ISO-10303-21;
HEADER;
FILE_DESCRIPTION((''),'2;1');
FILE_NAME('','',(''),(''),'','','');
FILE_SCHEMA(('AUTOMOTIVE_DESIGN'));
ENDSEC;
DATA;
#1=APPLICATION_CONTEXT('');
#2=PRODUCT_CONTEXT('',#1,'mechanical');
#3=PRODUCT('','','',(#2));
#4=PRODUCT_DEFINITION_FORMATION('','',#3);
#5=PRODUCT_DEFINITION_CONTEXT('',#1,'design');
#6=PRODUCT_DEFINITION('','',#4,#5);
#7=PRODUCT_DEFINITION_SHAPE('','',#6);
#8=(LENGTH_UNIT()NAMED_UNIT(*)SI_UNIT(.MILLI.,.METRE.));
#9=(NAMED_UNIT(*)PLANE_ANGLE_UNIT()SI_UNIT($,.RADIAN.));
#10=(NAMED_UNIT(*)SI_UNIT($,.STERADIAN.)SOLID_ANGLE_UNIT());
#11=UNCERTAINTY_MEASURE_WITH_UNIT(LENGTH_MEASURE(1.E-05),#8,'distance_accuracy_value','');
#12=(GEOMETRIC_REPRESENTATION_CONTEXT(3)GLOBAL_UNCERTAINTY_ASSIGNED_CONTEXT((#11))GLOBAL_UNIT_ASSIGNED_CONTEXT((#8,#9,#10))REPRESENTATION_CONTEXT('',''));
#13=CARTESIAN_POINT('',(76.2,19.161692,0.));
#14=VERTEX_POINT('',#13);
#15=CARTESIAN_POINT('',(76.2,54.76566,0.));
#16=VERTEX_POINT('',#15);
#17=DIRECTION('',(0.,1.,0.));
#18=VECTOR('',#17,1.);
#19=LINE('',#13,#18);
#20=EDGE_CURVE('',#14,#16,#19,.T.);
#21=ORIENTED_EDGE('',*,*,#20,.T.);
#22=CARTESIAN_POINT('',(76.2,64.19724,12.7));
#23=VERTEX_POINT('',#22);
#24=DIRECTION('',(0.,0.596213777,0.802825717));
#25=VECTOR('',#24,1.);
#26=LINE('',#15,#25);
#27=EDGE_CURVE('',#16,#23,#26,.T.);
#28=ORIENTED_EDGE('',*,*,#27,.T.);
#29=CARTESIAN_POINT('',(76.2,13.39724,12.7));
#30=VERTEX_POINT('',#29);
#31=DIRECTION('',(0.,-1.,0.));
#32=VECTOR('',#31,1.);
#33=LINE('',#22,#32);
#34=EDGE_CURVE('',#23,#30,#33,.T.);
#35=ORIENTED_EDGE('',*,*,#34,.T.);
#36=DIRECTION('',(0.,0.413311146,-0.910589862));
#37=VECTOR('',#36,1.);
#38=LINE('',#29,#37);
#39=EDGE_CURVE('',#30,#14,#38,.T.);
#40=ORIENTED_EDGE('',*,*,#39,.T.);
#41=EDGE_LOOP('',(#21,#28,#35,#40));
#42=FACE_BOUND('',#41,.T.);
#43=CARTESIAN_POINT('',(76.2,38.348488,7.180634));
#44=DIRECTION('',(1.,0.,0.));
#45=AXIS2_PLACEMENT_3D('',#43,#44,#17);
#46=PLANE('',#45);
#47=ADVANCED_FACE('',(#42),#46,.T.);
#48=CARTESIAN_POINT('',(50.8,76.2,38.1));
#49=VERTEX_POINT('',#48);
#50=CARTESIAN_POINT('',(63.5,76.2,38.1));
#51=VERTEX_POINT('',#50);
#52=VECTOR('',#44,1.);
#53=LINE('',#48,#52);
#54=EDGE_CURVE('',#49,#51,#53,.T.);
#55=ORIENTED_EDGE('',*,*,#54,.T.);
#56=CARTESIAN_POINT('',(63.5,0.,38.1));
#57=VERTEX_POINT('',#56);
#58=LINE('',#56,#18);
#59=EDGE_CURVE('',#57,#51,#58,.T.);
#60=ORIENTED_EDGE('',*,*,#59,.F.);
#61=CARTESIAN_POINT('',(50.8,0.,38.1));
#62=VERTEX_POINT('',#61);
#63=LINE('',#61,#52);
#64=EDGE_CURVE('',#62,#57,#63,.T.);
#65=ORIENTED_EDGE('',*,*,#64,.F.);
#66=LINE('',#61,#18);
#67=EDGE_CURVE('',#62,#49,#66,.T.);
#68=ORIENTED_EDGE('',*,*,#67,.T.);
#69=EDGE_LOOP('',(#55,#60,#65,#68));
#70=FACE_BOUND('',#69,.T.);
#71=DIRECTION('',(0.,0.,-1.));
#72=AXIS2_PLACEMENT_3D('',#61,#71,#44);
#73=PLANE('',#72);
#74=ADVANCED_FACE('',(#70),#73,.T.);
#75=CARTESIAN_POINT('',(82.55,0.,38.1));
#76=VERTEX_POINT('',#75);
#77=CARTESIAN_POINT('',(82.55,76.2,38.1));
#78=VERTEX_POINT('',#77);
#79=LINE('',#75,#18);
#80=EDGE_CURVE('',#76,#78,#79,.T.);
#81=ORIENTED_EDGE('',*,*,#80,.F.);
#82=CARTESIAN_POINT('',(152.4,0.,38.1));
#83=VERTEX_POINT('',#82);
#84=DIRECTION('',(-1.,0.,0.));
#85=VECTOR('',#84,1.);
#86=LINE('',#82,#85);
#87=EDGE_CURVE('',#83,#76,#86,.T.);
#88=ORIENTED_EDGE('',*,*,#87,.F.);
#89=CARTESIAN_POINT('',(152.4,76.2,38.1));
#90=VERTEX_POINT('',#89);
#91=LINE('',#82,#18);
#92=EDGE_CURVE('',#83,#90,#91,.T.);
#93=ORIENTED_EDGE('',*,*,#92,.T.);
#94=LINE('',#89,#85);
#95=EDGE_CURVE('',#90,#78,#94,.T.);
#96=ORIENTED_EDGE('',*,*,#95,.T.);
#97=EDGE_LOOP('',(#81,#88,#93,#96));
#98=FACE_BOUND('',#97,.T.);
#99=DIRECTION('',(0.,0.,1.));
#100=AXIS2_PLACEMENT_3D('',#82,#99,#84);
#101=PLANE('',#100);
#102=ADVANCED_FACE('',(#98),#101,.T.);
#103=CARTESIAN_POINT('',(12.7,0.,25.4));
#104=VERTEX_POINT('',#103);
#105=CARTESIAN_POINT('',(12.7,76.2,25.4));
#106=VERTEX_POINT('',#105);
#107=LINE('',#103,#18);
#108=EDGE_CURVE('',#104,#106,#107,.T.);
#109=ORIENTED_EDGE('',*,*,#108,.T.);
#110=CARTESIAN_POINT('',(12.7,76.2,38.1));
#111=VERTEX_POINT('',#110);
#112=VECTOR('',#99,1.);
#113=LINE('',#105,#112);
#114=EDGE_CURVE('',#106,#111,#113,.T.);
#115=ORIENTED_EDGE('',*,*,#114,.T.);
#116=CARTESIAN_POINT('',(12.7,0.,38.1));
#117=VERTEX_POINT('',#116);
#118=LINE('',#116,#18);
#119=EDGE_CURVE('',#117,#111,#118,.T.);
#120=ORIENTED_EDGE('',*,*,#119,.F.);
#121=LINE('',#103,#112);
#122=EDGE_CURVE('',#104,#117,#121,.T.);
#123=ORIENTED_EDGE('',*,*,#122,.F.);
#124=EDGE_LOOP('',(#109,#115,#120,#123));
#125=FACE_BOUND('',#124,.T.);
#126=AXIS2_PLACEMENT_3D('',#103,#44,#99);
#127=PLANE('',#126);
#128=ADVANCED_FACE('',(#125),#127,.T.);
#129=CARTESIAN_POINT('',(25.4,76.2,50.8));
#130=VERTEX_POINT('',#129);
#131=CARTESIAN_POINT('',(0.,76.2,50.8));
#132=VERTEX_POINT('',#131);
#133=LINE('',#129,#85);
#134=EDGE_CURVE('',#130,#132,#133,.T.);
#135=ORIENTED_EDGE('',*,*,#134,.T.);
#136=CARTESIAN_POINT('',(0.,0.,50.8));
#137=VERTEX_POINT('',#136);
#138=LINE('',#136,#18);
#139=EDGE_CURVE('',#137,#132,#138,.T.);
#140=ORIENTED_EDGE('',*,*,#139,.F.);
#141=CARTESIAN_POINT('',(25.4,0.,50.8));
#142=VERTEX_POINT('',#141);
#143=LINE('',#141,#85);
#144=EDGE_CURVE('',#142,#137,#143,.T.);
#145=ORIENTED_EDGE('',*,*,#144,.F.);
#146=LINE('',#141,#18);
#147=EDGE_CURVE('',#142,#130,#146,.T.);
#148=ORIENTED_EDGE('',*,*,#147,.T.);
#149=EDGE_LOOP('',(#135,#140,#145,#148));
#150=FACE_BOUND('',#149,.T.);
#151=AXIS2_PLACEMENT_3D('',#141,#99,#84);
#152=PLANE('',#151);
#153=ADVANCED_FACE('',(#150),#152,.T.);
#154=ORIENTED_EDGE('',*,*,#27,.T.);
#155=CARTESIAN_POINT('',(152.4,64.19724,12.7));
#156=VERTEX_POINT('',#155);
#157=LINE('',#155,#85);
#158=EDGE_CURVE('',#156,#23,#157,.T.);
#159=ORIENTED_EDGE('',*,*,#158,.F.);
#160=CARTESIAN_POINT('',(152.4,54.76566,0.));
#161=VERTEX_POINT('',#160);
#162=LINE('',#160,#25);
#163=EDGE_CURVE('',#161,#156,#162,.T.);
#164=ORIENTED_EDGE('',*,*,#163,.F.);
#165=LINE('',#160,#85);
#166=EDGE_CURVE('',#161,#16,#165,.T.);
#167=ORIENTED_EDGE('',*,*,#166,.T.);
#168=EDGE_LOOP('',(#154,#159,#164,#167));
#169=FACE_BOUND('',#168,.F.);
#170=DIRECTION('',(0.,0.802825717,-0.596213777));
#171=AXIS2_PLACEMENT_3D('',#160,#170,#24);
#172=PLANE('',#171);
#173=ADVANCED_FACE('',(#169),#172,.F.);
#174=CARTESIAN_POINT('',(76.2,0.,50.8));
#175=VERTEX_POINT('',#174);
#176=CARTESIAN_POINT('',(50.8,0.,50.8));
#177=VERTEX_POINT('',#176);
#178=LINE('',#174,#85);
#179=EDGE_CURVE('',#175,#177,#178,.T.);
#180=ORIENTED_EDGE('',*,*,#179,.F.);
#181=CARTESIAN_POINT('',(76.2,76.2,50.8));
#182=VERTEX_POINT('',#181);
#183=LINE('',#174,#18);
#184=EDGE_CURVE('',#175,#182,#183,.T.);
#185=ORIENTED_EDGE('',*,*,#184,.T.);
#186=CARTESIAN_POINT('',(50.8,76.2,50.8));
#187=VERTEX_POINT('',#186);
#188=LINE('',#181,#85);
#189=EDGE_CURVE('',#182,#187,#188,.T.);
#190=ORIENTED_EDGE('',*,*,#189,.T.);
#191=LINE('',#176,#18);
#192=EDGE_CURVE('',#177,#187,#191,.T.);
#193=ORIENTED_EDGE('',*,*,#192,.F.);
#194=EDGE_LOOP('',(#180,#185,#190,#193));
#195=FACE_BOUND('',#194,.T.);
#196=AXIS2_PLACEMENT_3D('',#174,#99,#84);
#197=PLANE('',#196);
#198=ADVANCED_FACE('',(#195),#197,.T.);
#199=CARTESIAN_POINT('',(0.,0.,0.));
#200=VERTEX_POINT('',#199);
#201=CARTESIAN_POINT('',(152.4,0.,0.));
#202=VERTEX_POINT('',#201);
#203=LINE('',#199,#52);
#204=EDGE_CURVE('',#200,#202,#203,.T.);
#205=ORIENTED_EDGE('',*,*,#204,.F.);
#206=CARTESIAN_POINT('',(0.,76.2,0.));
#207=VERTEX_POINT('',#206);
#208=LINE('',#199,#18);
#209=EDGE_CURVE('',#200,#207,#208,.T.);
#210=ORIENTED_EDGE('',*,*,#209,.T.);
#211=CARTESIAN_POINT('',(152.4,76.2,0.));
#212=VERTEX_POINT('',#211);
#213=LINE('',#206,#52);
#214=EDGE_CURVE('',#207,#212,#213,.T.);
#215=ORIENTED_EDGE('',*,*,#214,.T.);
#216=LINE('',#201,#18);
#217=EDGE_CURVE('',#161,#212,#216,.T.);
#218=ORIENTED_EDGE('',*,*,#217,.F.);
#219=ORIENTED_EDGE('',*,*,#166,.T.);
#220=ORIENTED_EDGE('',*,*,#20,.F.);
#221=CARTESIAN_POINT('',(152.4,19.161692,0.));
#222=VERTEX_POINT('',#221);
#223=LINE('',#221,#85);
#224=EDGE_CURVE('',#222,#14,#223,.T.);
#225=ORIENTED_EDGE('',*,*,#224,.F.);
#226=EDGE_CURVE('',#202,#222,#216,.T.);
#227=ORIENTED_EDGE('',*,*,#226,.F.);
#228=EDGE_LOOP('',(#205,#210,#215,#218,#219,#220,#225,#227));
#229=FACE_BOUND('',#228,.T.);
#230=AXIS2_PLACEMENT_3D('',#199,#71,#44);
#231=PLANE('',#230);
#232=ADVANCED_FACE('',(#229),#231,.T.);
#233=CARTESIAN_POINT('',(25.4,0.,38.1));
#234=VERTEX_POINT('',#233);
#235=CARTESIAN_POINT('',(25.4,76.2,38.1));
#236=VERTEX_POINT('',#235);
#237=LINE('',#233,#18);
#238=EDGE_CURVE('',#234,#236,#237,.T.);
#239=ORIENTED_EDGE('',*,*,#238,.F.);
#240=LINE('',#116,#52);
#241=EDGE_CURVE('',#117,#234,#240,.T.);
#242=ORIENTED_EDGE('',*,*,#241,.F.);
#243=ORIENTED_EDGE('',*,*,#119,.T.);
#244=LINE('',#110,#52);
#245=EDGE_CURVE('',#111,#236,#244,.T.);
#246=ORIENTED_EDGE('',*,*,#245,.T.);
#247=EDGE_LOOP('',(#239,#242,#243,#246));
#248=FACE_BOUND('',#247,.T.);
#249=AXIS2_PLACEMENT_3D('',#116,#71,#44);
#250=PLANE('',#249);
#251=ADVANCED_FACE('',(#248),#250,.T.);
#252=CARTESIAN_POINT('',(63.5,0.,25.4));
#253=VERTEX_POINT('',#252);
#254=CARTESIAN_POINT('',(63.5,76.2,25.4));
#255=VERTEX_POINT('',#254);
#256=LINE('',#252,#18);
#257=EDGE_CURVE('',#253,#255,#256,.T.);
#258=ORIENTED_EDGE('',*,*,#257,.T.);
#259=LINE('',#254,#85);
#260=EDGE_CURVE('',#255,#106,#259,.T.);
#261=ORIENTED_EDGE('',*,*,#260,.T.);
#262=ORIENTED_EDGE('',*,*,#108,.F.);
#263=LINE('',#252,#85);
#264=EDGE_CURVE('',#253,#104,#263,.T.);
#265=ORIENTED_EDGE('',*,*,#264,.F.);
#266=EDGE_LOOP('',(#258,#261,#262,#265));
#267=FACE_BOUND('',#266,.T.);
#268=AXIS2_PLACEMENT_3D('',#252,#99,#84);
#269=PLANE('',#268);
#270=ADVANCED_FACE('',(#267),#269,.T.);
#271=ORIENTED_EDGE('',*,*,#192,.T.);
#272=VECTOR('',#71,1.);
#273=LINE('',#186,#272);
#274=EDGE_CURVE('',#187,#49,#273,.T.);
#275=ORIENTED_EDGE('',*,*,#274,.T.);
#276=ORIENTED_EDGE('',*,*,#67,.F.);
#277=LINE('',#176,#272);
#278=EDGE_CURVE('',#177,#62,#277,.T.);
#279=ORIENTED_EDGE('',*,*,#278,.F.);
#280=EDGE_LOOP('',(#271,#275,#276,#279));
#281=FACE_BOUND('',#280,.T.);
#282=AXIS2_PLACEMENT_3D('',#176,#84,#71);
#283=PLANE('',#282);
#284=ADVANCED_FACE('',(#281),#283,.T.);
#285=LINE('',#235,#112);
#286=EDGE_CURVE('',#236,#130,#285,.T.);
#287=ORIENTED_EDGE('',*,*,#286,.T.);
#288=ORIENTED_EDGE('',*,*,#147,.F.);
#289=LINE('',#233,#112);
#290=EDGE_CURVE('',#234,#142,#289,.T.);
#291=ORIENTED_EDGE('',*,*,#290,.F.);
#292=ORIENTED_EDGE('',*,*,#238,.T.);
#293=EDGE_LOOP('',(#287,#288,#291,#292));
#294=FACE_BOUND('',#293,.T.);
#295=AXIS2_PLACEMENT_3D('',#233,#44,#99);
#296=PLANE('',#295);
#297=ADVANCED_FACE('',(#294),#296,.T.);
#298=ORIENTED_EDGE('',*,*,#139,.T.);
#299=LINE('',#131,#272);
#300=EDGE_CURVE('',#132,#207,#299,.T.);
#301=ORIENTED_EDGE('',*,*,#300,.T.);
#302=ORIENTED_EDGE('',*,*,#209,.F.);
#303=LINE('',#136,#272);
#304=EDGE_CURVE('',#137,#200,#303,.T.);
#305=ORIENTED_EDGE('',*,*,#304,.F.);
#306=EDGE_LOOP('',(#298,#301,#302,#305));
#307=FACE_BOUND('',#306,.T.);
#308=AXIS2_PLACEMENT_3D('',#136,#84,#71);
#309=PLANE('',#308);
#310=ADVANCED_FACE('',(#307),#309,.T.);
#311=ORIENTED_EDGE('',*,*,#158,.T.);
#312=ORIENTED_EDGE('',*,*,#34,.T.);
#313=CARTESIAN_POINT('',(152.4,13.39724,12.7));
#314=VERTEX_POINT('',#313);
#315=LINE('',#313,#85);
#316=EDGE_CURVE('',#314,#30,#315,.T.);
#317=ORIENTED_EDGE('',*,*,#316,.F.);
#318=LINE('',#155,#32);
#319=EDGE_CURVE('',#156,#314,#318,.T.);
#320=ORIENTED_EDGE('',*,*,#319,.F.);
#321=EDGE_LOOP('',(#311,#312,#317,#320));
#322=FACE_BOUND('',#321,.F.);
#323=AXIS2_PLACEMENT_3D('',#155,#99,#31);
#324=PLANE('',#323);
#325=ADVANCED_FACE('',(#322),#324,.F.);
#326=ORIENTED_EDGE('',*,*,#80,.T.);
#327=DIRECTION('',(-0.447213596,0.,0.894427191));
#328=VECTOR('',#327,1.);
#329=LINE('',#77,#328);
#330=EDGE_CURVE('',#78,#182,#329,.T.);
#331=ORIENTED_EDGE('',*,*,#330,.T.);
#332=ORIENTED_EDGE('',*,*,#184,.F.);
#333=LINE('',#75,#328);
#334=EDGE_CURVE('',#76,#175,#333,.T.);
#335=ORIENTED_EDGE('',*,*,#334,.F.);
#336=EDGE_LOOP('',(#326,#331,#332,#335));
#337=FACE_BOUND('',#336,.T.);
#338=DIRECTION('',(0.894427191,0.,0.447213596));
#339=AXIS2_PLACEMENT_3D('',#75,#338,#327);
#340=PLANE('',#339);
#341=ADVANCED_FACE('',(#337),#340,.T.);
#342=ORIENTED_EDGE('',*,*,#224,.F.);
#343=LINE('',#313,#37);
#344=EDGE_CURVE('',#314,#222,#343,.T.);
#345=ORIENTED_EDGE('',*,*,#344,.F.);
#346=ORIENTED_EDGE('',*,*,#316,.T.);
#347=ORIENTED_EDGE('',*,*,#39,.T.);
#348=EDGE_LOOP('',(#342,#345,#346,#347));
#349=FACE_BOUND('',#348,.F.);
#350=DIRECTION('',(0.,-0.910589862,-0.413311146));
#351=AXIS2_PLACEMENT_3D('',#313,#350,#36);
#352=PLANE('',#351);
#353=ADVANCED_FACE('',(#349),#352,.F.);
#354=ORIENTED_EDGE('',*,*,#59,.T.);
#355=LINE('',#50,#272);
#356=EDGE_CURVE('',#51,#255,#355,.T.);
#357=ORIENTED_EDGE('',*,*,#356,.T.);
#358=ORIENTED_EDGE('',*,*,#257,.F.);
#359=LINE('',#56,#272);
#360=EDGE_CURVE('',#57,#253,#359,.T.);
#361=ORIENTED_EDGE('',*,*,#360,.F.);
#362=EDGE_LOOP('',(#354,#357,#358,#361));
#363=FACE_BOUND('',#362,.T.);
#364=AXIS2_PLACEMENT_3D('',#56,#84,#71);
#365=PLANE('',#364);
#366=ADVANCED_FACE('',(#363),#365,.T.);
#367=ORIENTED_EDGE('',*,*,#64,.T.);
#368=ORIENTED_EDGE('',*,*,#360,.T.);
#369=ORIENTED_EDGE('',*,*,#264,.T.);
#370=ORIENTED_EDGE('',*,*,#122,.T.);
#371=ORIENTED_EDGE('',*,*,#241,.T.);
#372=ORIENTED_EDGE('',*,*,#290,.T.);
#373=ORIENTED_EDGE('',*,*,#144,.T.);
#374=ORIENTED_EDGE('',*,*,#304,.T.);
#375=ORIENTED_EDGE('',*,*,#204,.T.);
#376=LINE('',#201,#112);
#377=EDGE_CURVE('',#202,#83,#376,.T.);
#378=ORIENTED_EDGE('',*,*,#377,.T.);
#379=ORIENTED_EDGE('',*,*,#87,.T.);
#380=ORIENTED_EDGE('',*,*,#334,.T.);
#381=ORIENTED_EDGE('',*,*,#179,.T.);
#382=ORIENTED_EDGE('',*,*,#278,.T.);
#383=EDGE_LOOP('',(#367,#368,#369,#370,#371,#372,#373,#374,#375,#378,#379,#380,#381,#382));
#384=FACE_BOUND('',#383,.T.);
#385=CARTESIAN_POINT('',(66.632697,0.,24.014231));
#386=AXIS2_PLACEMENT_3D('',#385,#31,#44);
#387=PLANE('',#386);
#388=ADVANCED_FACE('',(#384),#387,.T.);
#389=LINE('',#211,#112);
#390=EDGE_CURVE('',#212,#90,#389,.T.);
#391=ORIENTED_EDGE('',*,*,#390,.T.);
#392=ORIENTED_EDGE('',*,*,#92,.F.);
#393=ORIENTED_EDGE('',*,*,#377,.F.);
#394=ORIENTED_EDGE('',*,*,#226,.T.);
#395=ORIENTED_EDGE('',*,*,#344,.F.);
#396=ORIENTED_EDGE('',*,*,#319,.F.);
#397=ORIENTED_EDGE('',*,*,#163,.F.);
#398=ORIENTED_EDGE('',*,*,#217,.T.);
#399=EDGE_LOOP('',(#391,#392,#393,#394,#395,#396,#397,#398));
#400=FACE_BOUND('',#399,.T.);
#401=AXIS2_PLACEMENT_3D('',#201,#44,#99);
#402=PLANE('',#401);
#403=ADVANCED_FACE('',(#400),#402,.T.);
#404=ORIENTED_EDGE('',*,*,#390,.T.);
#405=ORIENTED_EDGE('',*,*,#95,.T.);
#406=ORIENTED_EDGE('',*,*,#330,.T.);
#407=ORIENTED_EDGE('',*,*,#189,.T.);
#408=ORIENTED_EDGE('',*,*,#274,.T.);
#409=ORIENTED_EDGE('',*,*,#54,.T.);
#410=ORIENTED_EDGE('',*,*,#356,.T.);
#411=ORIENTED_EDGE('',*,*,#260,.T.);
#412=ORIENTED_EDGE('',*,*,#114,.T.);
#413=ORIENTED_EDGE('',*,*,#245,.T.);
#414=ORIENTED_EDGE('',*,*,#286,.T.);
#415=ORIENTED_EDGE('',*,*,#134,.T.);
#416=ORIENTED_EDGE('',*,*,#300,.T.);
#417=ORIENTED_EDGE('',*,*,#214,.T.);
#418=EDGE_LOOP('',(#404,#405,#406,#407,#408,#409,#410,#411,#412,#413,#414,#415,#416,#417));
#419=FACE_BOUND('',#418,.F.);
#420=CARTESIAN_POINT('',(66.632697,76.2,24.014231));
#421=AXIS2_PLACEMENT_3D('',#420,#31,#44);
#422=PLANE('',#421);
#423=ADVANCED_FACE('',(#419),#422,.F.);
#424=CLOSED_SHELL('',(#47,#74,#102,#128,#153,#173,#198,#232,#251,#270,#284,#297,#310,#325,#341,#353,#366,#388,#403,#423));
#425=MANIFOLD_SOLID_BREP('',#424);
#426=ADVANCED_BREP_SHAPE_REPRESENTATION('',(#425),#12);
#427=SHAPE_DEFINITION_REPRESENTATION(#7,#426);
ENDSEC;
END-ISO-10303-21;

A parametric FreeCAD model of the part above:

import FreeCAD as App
import Part
import Sketcher

V = App.Vector
Q = App.Units.Quantity


def add_polygon(sketch, points):
    """Adds a closed chain of lines whose ends are joined by coincident constraints."""
    first, n = sketch.GeometryCount, len(points)
    for a, b in zip(points, points[1:] + points[:1]):
        sketch.addGeometry(Part.LineSegment(App.Vector(*a, 0), App.Vector(*b, 0)), False)
    for i in range(n):
        sketch.addConstraint(Sketcher.Constraint("Coincident", first + i, 2, first + (i + 1) % n, 1))

doc = App.newDocument("Part")
body = doc.addObject("PartDesign::Body", "Body")

# Sketch on XZ plane
sketch1 = body.newObject("Sketcher::SketchObject", "Sketch")
sketch1.AttachmentSupport = (doc.getObject("XZ_Plane"), [""])
sketch1.MapMode = "FlatFace"
add_polygon(sketch1, [(0, 51), (0, 0), (152, 0), (152, 38), (83, 38), (76, 51), (51, 51), (51, 38), (64, 38), (64, 25), (13, 25), (13, 38), (25, 38), (25, 51)])  # lines 0-13
sketch1.addConstraint(Sketcher.Constraint("Vertical", 0))
sketch1.addConstraint(Sketcher.Constraint("Horizontal", 1))
sketch1.addConstraint(Sketcher.Constraint("Vertical", 2))
sketch1.addConstraint(Sketcher.Constraint("Horizontal", 3))
sketch1.addConstraint(Sketcher.Constraint("Horizontal", 5))
sketch1.addConstraint(Sketcher.Constraint("Vertical", 6))
sketch1.addConstraint(Sketcher.Constraint("Horizontal", 7))
sketch1.addConstraint(Sketcher.Constraint("Vertical", 8))
sketch1.addConstraint(Sketcher.Constraint("Horizontal", 9))
sketch1.addConstraint(Sketcher.Constraint("Vertical", 10))
sketch1.addConstraint(Sketcher.Constraint("Horizontal", 11))
sketch1.addConstraint(Sketcher.Constraint("Vertical", 12))
sketch1.addConstraint(Sketcher.Constraint("Horizontal", 13))
sketch1.addConstraint(Sketcher.Constraint("Coincident", 0, 2, -1, 1))
sketch1.addConstraint(Sketcher.Constraint("Horizontal", 3, 2, 6, 2))
sketch1.addConstraint(Sketcher.Constraint("Horizontal", 7, 2, 10, 2))
sketch1.addConstraint(Sketcher.Constraint("Horizontal", 5, 2, 12, 2))
sketch1.addConstraint(Sketcher.Constraint("Equal", 7, 11))
sketch1.addConstraint(Sketcher.Constraint("Equal", 5, 13))
sketch1.addConstraint(Sketcher.Constraint("Equal", 9, 0))
sketch1.addConstraint(Sketcher.Constraint("Equal", 11, 6))
sketch1.addConstraint(Sketcher.Constraint("Equal", 6, 8))
sketch1.addConstraint(Sketcher.Constraint("DistanceX", 1, 1, 1, 2, Q("6 in")))
sketch1.addConstraint(Sketcher.Constraint("DistanceX", 5, 2, 5, 1, Q("1 in")))
sketch1.addConstraint(Sketcher.Constraint("DistanceX", 9, 2, 9, 1, Q("2 in")))
sketch1.addConstraint(Sketcher.Constraint("DistanceX", 7, 1, 7, 2, Q("0.5 in")))
sketch1.addConstraint(Sketcher.Constraint("DistanceX", 3, 2, 3, 1, Q("2.75 in")))
pad1 = body.newObject("PartDesign::Pad", "Pad")
pad1.Profile = sketch1
pad1.Length = Q("3 in")
pad1.Reversed = True

# Sketch on YZ plane
sketch2 = body.newObject("Sketcher::SketchObject", "Sketch001")
sketch2.AttachmentSupport = (doc.getObject("YZ_Plane"), [""])
sketch2.MapMode = "FlatFace"
sketch2.AttachmentOffset = App.Placement(V(0, 0, 6 * 25.4), App.Rotation())
add_polygon(sketch2, [(13, 13), (19, 0), (55, 0), (64, 13)])  # lines 0-3
sketch2.addConstraint(Sketcher.Constraint("Horizontal", 1))
sketch2.addConstraint(Sketcher.Constraint("Horizontal", 3))
sketch2.addConstraint(Sketcher.Constraint("PointOnObject", 0, 2, -1))
sketch2.addConstraint(Sketcher.Constraint("DistanceX", 3, 2, 3, 1, Q("2 in")))
sketch2.addConstraint(Sketcher.Constraint("DistanceY", -1, 1, 2, 2, Q("0.5 in")))
sketch2.addConstraint(Sketcher.Constraint("Distance", 2, Q("0.6228002 in")))
sketch2.addConstraint(Sketcher.Constraint("DistanceX", 1, 1, 1, 2, Q("35.603968 mm")))
sketch2.addConstraint(Sketcher.Constraint("DistanceX", -1, 1, 0, 2, Q("19.161692 mm")))
pocket1 = body.newObject("PartDesign::Pocket", "Pocket")
pocket1.Profile = sketch2
pocket1.Length = Q("3 in")

doc.recompute()
